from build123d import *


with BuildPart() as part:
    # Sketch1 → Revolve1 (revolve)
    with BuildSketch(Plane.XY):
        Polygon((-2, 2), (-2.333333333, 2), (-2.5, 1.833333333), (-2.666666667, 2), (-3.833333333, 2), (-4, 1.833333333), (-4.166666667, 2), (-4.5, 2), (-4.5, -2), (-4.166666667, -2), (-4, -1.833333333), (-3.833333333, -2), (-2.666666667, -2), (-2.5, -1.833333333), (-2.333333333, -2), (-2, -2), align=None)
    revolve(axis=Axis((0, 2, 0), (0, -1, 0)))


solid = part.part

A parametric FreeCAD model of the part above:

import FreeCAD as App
import Part
import Sketcher

V = App.Vector

doc = App.newDocument("Part")
body = doc.addObject("PartDesign::Body", "Body")

# Sketch on XY plane
sketch1 = body.newObject("Sketcher::SketchObject", "Sketch")
sketch1.AttachmentSupport = (doc.getObject("XY_Plane"), [""])
sketch1.MapMode = "FlatFace"
sketch1.addGeometry([
    Part.LineSegment(V(-2, 2, 0), V(-2.333333, 2, 0)),  # 0
    Part.LineSegment(V(-2.333333, 2, 0), V(-2.5, 1.833333, 0)),  # 1
    Part.LineSegment(V(-2.5, 1.833333, 0), V(-2.666667, 2, 0)),  # 2
    Part.LineSegment(V(-2.666667, 2, 0), V(-3.833333, 2, 0)),  # 3
    Part.LineSegment(V(-3.833333, 2, 0), V(-4, 1.833333, 0)),  # 4
    Part.LineSegment(V(-4, 1.833333, 0), V(-4.166667, 2, 0)),  # 5
    Part.LineSegment(V(-4.166667, 2, 0), V(-4.5, 2, 0)),  # 6
    Part.LineSegment(V(-4.5, 2, 0), V(-4.5, -2, 0)),  # 7
    Part.LineSegment(V(-4.5, -2, 0), V(-4.166667, -2, 0)),  # 8
    Part.LineSegment(V(-4.166667, -2, 0), V(-4, -1.833333, 0)),  # 9
    Part.LineSegment(V(-4, -1.833333, 0), V(-3.833333, -2, 0)),  # 10
    Part.LineSegment(V(-3.833333, -2, 0), V(-2.666667, -2, 0)),  # 11
    Part.LineSegment(V(-2.666667, -2, 0), V(-2.5, -1.833333, 0)),  # 12
    Part.LineSegment(V(-2.5, -1.833333, 0), V(-2.333333, -2, 0)),  # 13
    Part.LineSegment(V(-2.333333, -2, 0), V(-2, -2, 0)),  # 14
    Part.LineSegment(V(-2, -2, 0), V(-2, 2, 0)),  # 15
], False)
sketch1.addConstraint([
    Sketcher.Constraint("Coincident", 0, 2, 1, 1),
    Sketcher.Constraint("Coincident", 1, 2, 2, 1),
    Sketcher.Constraint("Coincident", 2, 2, 3, 1),
    Sketcher.Constraint("Coincident", 3, 2, 4, 1),
    Sketcher.Constraint("Coincident", 4, 2, 5, 1),
    Sketcher.Constraint("Coincident", 5, 2, 6, 1),
    Sketcher.Constraint("Coincident", 6, 2, 7, 1),
    Sketcher.Constraint("Coincident", 7, 2, 8, 1),
    Sketcher.Constraint("Coincident", 8, 2, 9, 1),
    Sketcher.Constraint("Coincident", 9, 2, 10, 1),
    Sketcher.Constraint("Coincident", 10, 2, 11, 1),
    Sketcher.Constraint("Coincident", 11, 2, 12, 1),
    Sketcher.Constraint("Coincident", 12, 2, 13, 1),
    Sketcher.Constraint("Coincident", 13, 2, 14, 1),
    Sketcher.Constraint("Coincident", 14, 2, 15, 1),
    Sketcher.Constraint("Coincident", 15, 2, 0, 1),
    Sketcher.Constraint("Horizontal", 0),
    Sketcher.Constraint("Horizontal", 3),
    Sketcher.Constraint("Horizontal", 6),
    Sketcher.Constraint("Vertical", 7),
    Sketcher.Constraint("Horizontal", 8),
    Sketcher.Constraint("Horizontal", 11),
    Sketcher.Constraint("Horizontal", 14),
    Sketcher.Constraint("Vertical", 15),
    Sketcher.Constraint("Symmetric", 5, 2, 8, 2, -1),
    Sketcher.Constraint("Symmetric", 4, 2, 9, 2, -1),
    Sketcher.Constraint("Symmetric", 3, 2, 10, 2, -1),
    Sketcher.Constraint("Symmetric", 1, 2, 12, 2, -1),
    Sketcher.Constraint("Symmetric", 0, 2, 13, 2, -1),
    Sketcher.Constraint("Perpendicular", 1, 2),
    Sketcher.Constraint("Perpendicular", 2, 4),
    Sketcher.Constraint("Perpendicular", 4, 5),
    Sketcher.Constraint("Perpendicular", 5, 9),
    Sketcher.Constraint("Perpendicular", 10, 12),
    Sketcher.Constraint("Horizontal", 0, 2, 2, 2),
    Sketcher.Constraint("Horizontal", 1, 2, 4, 2),
    Sketcher.Constraint("Horizontal", 3, 2, 5, 2),
    Sketcher.Constraint("Equal", 0, 6),
    Sketcher.Constraint("DistanceY", 7, 2, 7, 1, 4.0),
    Sketcher.Constraint("DistanceX", 4, 2, -1, 1, 4.0),
    Sketcher.Constraint("DistanceX", 14, 2, -1, 1, 2.0),
    Sketcher.Constraint("DistanceX", 1, 2, -1, 1, 2.5),
    Sketcher.Constraint("DistanceX", 0, 2, 0, 1, 0.333333),
])
revolution = body.newObject("PartDesign::Revolution", "Revolution")
revolution.Profile = sketch1
revolution.ReferenceAxis = (sketch1, ["V_Axis"])
revolution.Angle = 360

doc.recompute()
